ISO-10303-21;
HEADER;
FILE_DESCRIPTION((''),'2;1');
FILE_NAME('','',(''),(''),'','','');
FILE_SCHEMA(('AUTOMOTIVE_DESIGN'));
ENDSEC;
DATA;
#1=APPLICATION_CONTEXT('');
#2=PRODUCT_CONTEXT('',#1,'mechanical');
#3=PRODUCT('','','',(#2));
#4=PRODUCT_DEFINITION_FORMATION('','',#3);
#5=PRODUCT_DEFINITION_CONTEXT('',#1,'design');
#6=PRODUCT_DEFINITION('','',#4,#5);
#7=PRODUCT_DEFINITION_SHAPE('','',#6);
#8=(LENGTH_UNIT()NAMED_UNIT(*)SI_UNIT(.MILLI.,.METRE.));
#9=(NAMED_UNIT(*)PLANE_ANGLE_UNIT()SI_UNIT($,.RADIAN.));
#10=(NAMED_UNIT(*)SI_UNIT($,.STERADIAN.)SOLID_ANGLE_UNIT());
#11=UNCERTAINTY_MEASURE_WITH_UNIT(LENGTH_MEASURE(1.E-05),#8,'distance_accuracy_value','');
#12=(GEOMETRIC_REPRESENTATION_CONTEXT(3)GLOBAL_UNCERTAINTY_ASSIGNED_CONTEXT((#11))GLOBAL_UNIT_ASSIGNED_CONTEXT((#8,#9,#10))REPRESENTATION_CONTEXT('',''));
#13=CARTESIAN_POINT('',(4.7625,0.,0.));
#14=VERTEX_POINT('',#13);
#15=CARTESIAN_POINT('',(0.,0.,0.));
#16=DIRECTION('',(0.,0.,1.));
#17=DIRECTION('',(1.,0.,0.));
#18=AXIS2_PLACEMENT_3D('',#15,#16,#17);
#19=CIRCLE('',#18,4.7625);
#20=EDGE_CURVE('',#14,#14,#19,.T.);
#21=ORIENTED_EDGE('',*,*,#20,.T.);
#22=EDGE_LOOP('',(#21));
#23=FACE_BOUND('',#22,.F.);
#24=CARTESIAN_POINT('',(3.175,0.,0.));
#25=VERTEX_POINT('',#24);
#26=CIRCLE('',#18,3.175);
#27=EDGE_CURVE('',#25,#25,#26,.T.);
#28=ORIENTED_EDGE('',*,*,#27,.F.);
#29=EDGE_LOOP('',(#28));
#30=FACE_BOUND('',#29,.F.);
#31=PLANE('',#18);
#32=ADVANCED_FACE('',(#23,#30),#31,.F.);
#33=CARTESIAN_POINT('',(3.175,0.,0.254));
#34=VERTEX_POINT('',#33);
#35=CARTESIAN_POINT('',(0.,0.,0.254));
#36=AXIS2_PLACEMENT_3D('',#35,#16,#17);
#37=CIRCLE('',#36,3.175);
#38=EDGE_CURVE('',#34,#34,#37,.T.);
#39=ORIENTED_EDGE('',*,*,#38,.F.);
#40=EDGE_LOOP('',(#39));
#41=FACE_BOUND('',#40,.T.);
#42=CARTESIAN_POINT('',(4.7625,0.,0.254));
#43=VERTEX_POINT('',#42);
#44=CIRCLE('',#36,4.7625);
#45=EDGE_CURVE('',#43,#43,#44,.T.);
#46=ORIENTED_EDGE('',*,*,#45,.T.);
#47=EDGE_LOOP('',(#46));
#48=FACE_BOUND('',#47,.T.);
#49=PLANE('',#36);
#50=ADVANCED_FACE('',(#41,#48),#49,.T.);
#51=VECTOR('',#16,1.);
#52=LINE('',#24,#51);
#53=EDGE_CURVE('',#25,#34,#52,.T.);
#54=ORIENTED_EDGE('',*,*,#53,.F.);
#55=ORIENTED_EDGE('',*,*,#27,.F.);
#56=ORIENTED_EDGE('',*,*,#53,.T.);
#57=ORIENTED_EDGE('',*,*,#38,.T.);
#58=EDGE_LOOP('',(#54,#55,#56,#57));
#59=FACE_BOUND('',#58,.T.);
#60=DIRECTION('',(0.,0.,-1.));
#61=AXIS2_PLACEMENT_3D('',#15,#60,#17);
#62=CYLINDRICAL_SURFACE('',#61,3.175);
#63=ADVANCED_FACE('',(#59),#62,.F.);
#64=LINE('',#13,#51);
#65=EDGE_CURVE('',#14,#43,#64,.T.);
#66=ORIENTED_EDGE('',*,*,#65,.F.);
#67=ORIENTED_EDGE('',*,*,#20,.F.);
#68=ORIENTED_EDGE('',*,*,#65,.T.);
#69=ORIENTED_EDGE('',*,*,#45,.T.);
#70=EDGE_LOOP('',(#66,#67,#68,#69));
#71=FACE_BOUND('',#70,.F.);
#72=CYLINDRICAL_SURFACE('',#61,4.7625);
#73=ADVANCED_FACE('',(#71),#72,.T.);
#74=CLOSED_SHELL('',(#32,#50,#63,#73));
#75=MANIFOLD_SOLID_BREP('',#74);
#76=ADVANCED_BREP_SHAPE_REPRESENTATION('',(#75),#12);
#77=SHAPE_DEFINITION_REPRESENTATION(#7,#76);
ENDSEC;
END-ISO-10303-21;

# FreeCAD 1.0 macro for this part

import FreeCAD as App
import Part
import Sketcher
from FreeCAD import Vector
Q = App.Units.Quantity

doc = App.newDocument("Part")
body = doc.addObject("PartDesign::Body", "Body")

sketch1 = body.newObject("Sketcher::SketchObject", "Sketch")
sketch1.AttachmentSupport = (doc.getObject("XY_Plane"), [""])
sketch1.MapMode = "FlatFace"
sketch1.addGeometry(Part.Circle(Vector(0, 0, 0), Vector(0, 0, 1), 4.8), False)
sketch1.addGeometry(Part.Circle(Vector(0, 0, 0), Vector(0, 0, 1), 3.2), False)
sketch1.addConstraint(Sketcher.Constraint("Coincident", 0, 3, -1, 1))
sketch1.addConstraint(Sketcher.Constraint("Coincident", 1, 3, -1, 1))
sketch1.addConstraint(Sketcher.Constraint("Diameter", 1, Q("0.25 in")))
sketch1.addConstraint(Sketcher.Constraint("Diameter", 0, Q("0.375 in")))
pad1 = body.newObject("PartDesign::Pad", "Pad")
pad1.Profile = sketch1
pad1.Length = Q("0.01 in")

doc.recompute()
